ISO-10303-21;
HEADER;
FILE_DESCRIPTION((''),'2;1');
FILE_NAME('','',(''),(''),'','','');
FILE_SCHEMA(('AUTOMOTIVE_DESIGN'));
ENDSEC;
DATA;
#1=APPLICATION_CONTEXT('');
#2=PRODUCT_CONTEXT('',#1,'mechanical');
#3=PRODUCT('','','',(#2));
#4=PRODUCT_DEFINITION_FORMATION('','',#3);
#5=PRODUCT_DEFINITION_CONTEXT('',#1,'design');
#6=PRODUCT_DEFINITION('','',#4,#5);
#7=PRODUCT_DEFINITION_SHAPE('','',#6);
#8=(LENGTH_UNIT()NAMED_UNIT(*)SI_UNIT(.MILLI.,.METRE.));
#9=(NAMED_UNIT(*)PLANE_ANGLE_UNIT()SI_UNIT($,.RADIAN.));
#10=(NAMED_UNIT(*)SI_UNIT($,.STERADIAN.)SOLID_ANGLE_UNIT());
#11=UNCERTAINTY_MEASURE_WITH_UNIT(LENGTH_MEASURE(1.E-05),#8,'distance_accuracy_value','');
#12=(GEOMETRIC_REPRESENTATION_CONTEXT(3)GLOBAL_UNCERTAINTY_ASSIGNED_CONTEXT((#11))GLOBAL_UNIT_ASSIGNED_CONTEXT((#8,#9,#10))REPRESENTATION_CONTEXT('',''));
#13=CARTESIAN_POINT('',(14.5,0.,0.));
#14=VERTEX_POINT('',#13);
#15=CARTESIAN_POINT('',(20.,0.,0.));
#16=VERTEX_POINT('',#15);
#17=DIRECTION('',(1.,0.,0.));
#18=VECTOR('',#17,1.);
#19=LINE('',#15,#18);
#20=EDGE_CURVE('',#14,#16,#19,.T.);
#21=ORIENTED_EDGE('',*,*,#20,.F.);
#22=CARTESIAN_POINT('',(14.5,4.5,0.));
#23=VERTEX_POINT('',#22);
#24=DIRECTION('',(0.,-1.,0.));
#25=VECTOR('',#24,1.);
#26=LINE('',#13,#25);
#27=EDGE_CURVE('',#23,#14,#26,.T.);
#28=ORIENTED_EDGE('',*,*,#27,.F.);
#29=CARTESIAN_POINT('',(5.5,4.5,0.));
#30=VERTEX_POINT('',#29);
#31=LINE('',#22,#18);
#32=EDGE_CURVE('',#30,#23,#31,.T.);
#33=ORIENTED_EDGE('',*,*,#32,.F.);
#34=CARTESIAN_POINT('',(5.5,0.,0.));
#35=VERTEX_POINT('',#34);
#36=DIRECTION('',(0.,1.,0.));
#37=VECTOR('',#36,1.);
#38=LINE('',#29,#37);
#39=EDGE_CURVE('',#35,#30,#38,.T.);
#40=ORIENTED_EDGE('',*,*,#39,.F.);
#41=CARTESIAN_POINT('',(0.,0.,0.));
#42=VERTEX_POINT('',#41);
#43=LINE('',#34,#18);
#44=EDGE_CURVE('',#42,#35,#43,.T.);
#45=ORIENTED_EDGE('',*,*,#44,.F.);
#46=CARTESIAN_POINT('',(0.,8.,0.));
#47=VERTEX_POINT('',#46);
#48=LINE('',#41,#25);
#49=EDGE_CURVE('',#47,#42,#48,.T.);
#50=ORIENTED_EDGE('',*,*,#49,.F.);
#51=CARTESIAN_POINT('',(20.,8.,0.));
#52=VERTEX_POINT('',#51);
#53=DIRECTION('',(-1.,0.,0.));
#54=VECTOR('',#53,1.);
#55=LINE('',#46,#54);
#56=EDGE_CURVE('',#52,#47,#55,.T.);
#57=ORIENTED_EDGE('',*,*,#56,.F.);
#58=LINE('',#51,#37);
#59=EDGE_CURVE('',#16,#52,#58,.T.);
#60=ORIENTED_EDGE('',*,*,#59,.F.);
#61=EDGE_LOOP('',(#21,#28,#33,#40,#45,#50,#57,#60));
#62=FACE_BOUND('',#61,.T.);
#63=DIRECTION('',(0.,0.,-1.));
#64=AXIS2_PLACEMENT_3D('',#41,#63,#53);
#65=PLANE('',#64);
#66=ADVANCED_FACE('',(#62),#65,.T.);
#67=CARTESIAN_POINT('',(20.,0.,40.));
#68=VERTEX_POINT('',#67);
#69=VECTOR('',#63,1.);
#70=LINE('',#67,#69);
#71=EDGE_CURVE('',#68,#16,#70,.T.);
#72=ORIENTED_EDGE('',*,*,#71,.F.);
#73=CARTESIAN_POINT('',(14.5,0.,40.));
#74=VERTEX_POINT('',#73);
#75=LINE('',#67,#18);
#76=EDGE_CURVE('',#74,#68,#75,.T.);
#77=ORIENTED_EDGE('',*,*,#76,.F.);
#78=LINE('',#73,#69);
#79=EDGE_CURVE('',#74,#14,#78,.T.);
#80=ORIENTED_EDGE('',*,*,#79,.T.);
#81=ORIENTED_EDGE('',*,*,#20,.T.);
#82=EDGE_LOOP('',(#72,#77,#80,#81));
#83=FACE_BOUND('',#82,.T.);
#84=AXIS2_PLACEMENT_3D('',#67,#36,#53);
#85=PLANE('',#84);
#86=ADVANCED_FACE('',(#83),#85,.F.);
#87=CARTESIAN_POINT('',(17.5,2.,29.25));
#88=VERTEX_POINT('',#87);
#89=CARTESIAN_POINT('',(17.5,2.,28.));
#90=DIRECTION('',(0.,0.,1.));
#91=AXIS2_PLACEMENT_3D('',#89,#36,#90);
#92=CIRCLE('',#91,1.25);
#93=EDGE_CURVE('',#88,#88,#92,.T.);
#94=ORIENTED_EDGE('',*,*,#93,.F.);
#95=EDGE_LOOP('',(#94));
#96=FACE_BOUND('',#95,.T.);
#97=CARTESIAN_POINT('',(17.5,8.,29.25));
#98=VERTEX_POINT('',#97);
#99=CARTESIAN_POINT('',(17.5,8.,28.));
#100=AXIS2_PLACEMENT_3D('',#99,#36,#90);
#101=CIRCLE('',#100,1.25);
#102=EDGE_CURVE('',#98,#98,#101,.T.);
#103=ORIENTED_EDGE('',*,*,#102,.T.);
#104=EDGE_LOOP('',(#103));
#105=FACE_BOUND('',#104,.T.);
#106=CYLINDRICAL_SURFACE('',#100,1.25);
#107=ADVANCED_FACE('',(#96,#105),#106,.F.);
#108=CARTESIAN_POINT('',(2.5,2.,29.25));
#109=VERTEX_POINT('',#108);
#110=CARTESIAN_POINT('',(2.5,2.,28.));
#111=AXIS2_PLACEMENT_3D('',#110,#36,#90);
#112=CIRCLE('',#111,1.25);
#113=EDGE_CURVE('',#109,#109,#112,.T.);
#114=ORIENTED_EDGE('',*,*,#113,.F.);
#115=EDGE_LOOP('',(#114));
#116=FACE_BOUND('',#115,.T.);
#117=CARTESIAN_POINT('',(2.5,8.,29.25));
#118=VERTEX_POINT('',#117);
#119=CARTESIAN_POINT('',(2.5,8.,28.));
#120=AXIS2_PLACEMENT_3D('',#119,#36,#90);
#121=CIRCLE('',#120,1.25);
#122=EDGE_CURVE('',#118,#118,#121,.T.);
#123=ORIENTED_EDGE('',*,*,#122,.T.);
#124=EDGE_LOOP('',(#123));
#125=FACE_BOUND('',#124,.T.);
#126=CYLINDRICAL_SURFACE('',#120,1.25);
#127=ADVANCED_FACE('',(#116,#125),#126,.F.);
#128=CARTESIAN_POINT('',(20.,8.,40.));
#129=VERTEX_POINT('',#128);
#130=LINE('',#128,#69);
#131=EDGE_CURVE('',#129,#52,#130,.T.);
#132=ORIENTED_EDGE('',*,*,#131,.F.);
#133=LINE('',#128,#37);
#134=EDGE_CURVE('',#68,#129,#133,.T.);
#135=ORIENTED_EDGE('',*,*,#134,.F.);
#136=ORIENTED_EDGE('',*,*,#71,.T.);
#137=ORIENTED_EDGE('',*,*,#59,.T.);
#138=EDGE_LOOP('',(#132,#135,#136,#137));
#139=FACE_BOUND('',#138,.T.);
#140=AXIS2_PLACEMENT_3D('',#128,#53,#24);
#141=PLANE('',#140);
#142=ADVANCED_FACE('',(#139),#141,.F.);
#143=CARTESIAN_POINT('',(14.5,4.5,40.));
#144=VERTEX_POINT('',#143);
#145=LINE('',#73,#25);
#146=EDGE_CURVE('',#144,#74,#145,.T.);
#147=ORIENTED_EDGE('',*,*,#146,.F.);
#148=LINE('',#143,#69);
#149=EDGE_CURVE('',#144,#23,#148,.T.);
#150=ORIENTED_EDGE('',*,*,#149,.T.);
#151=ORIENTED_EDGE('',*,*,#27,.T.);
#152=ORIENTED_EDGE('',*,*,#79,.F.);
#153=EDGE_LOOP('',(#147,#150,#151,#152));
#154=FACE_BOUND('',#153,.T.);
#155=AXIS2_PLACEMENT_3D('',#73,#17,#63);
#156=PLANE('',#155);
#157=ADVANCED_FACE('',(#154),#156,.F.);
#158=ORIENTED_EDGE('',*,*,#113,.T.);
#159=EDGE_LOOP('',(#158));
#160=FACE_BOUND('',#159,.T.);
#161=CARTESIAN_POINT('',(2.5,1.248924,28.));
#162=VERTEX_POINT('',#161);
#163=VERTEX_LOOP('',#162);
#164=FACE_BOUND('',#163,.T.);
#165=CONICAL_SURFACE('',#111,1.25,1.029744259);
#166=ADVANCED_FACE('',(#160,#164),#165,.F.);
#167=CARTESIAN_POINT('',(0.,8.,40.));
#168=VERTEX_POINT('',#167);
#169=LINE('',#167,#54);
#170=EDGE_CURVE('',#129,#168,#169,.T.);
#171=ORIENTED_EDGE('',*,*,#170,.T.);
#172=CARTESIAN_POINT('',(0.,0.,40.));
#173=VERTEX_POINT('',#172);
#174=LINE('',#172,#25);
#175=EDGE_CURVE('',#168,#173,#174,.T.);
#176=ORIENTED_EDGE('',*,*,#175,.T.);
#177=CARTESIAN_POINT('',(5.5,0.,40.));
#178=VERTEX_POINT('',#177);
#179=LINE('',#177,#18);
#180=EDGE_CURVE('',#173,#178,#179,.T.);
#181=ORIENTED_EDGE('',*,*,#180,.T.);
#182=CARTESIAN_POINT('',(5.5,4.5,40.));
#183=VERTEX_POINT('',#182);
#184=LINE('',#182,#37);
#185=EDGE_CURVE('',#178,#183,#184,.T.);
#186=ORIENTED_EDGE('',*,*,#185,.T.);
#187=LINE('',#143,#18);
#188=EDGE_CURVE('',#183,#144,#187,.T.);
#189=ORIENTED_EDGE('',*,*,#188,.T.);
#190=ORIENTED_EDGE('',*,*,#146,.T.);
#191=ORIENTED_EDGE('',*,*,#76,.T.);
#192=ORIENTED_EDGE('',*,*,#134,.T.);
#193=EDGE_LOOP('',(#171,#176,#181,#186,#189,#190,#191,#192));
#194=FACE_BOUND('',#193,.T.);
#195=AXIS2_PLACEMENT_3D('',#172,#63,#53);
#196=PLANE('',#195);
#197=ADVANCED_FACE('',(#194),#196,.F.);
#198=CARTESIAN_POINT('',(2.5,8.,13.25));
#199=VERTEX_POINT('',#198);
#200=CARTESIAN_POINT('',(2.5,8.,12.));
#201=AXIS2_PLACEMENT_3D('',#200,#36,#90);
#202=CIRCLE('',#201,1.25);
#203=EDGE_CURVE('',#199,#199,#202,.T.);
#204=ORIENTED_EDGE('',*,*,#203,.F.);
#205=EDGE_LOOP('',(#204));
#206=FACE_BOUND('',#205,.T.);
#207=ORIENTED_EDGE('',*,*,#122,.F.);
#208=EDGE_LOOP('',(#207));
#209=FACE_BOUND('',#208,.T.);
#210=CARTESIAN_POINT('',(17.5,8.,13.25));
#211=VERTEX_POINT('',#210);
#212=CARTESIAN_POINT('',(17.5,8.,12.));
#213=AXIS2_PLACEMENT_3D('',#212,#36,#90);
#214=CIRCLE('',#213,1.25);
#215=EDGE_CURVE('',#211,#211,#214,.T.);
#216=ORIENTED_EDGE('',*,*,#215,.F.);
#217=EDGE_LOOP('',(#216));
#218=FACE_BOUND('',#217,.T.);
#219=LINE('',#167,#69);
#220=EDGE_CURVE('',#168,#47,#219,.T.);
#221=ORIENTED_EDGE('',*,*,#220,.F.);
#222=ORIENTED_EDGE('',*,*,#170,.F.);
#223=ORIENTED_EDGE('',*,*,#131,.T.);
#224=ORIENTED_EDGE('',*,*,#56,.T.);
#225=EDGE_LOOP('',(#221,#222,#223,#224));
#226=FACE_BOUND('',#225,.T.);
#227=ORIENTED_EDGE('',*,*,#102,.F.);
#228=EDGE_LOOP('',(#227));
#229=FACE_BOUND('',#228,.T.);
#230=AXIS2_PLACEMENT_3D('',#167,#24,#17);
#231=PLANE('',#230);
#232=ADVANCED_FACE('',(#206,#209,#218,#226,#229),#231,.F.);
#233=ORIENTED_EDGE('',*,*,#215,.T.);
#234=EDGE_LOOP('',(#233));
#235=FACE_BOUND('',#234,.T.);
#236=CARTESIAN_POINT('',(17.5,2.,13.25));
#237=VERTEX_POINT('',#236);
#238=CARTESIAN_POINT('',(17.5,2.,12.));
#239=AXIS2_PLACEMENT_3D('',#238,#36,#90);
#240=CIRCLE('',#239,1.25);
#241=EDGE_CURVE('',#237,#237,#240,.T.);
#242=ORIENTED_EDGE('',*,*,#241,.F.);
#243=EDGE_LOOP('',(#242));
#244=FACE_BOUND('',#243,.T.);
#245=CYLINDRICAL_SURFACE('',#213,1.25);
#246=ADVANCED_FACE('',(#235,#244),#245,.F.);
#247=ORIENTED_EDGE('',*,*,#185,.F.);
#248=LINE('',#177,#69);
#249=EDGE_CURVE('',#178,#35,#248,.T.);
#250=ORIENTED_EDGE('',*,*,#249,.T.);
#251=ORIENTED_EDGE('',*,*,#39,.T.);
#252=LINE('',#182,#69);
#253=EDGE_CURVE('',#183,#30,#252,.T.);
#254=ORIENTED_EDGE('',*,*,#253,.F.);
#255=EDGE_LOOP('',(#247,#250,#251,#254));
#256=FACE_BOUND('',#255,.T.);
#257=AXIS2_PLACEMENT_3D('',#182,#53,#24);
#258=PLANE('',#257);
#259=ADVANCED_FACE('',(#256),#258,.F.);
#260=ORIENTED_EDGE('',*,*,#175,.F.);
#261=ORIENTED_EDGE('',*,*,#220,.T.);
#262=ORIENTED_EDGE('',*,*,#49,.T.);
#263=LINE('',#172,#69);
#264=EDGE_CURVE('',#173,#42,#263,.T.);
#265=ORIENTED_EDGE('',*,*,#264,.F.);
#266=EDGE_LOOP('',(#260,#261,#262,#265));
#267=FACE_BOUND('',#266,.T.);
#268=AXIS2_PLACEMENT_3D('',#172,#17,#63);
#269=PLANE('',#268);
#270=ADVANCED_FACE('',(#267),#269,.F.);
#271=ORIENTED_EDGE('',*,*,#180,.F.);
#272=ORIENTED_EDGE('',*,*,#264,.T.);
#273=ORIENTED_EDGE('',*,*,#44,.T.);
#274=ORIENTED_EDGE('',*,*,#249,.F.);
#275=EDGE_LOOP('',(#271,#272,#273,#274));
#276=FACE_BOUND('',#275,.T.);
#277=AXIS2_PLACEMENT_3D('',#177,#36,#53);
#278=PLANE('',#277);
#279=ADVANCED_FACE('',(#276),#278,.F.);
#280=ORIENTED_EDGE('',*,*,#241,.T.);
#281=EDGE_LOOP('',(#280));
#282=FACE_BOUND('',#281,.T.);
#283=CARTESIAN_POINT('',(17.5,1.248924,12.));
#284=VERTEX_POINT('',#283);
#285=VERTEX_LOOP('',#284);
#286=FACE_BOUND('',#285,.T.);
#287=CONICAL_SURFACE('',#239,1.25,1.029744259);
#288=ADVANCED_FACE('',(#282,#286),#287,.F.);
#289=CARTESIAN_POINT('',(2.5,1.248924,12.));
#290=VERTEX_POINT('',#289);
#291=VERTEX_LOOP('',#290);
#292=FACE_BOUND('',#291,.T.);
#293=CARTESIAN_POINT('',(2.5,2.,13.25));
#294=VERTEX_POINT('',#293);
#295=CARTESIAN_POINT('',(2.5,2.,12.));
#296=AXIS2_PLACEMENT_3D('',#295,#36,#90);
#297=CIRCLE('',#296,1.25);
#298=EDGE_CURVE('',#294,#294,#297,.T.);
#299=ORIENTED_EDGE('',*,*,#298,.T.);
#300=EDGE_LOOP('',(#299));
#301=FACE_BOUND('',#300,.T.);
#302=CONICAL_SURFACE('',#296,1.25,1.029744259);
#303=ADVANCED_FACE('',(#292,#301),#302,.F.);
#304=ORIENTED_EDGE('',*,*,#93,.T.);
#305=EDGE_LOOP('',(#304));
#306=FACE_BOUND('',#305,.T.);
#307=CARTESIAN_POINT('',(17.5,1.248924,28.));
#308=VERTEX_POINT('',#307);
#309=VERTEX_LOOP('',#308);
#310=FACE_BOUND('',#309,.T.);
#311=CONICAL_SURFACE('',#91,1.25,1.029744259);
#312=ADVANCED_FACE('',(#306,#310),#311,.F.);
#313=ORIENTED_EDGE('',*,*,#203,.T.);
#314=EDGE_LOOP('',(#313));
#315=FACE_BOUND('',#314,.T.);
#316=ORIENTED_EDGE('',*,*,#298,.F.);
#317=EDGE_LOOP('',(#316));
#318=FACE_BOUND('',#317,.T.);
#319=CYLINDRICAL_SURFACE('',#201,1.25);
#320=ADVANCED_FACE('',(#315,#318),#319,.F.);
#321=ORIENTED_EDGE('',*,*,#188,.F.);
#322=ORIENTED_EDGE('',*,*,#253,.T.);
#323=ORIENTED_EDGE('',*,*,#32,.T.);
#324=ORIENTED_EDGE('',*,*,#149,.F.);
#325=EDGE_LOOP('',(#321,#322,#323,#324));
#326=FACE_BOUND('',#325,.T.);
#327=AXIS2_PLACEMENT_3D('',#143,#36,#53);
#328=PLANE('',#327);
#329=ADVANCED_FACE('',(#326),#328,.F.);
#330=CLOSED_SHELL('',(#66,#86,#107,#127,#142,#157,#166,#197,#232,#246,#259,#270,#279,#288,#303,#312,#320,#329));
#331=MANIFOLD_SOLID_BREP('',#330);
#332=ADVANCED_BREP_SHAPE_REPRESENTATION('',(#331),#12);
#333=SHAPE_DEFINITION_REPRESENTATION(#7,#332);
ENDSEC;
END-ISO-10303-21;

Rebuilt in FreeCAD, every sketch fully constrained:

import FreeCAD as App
import Part
import Sketcher
from FreeCAD import Vector

doc = App.newDocument("Part")
body = doc.addObject("PartDesign::Body", "Body")

sketch1 = body.newObject("Sketcher::SketchObject", "Sketch")
sketch1.AttachmentSupport = (doc.getObject("XY_Plane"), [""])
sketch1.MapMode = "FlatFace"
sketch1.addGeometry([
    Part.LineSegment(Vector(0, 8, 0), Vector(0, 0, 0)),
    Part.LineSegment(Vector(0, 0, 0), Vector(5.5, 0, 0)),
    Part.LineSegment(Vector(5.5, 0, 0), Vector(5.5, 4.5, 0)),
    Part.LineSegment(Vector(5.5, 4.5, 0), Vector(14.5, 4.5, 0)),
    Part.LineSegment(Vector(14.5, 4.5, 0), Vector(14.5, 0, 0)),
    Part.LineSegment(Vector(14.5, 0, 0), Vector(20, 0, 0)),
    Part.LineSegment(Vector(20, 0, 0), Vector(20, 8, 0)),
    Part.LineSegment(Vector(20, 8, 0), Vector(0, 8, 0)),
], False)
sketch1.addConstraint([
    Sketcher.Constraint("Coincident", 0, 2, 1, 1),
    Sketcher.Constraint("Coincident", 1, 2, 2, 1),
    Sketcher.Constraint("Coincident", 2, 2, 3, 1),
    Sketcher.Constraint("Coincident", 3, 2, 4, 1),
    Sketcher.Constraint("Coincident", 4, 2, 5, 1),
    Sketcher.Constraint("Coincident", 5, 2, 6, 1),
    Sketcher.Constraint("Coincident", 6, 2, 7, 1),
    Sketcher.Constraint("Coincident", 7, 2, 0, 1),
    Sketcher.Constraint("Vertical", 0),
    Sketcher.Constraint("Horizontal", 1),
    Sketcher.Constraint("Vertical", 2),
    Sketcher.Constraint("Horizontal", 3),
    Sketcher.Constraint("Vertical", 4),
    Sketcher.Constraint("Horizontal", 5),
    Sketcher.Constraint("Vertical", 6),
    Sketcher.Constraint("Horizontal", 7),
    Sketcher.Constraint("Coincident", 0, 2, -1, 1),
    Sketcher.Constraint("PointOnObject", 4, 2, -1),
    Sketcher.Constraint("Equal", 1, 5),
    Sketcher.Constraint("DistanceX", 3, 1, 3, 2, 9.0),
    Sketcher.Constraint("DistanceX", 7, 2, 7, 1, 20.0),
    Sketcher.Constraint("DistanceY", 0, 2, 0, 1, 8.0),
    Sketcher.Constraint("DistanceY", 2, 1, 2, 2, 4.5),
])
pad1 = body.newObject("PartDesign::Pad", "Pad")
pad1.Profile = sketch1
pad1.Length = 40

sketch2 = body.newObject("Sketcher::SketchObject", "Sketch001")
sketch2.AttachmentSupport = (doc.getObject("XZ_Plane"), [""])
sketch2.MapMode = "FlatFace"
sketch2.AttachmentOffset = App.Placement(Vector(0, 0, -8), App.Rotation())
sketch2.addGeometry([
    Part.Circle(Vector(2.5, 28, 0), Vector(0, 0, 1), 1.2),
    Part.Circle(Vector(2.5, 12, 0), Vector(0, 0, 1), 1.2),
    Part.Circle(Vector(17.5, 28, 0), Vector(0, 0, 1), 1.2),
    Part.Circle(Vector(17.5, 12, 0), Vector(0, 0, 1), 1.2),
], False)
sketch2.addConstraint([
    Sketcher.Constraint("Equal", 0, 1),
    Sketcher.Constraint("Equal", 1, 2),
    Sketcher.Constraint("Equal", 2, 3),
    Sketcher.Constraint("Horizontal", 0, 3, 2, 3),
    Sketcher.Constraint("Horizontal", 1, 3, 3, 3),
    Sketcher.Constraint("Vertical", 0, 3, 1, 3),
    Sketcher.Constraint("Vertical", 2, 3, 3, 3),
    Sketcher.Constraint("Diameter", 0, 2.5),
    Sketcher.Constraint("DistanceY", -1, 1, 0, 3, 28.0),
    Sketcher.Constraint("DistanceY", -1, 1, 1, 3, 12.0),
    Sketcher.Constraint("DistanceX", 0, 3, 2, 3, 15.0),
    Sketcher.Constraint("DistanceX", -1, 1, 0, 3, 2.5),
])
doc.recompute()
hole = body.newObject("PartDesign::Hole", "Hole")
hole.Profile = sketch2
hole.ThreadType = "None"
hole.Diameter = 2.5
hole.DepthType = "Dimension"
hole.Depth = 6
hole.DrillPoint = "Angled"
hole.DrillPointAngle = 118
hole.Reversed = True

doc.recompute()
